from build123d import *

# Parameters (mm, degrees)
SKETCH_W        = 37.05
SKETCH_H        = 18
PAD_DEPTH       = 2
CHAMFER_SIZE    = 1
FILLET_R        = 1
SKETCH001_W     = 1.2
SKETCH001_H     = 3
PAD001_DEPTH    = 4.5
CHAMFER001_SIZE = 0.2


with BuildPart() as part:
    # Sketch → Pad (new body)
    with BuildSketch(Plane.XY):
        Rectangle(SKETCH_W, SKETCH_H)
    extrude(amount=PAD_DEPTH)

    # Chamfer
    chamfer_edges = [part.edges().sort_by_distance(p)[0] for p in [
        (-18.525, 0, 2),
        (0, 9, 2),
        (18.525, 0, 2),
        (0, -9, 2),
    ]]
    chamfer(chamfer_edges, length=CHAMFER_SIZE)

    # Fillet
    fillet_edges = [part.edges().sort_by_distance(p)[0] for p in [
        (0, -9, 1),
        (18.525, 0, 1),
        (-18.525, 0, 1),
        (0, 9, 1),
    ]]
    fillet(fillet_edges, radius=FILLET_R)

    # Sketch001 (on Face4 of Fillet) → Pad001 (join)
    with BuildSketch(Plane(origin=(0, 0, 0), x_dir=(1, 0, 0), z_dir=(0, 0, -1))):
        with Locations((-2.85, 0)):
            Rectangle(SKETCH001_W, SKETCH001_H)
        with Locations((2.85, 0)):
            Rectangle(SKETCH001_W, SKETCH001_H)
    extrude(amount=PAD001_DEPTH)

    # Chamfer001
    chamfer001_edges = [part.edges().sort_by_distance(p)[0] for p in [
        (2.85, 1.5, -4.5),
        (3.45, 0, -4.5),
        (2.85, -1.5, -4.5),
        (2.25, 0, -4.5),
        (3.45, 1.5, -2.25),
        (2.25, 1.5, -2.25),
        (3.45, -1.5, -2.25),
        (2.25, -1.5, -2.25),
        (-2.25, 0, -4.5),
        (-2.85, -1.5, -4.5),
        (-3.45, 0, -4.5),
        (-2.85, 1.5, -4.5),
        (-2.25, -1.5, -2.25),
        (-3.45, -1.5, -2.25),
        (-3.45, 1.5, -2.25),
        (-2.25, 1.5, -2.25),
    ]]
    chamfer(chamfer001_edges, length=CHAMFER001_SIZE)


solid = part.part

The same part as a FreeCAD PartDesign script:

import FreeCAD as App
import Part
import Sketcher

V = App.Vector
Q = App.Units.Quantity


def edges_at(feature, points):
    """Names of the edges that pass closest to the given points."""
    edges = feature.Shape.Edges
    near = lambda p: min(range(len(edges)), key=lambda i: edges[i].distToShape(Part.Vertex(*p))[0])
    return sorted({f"Edge{near(p) + 1}" for p in points})

doc = App.newDocument("Part")
body = doc.addObject("PartDesign::Body", "Body")

sketch1 = body.newObject("Sketcher::SketchObject", "Sketch")
sketch1.AttachmentSupport = (doc.getObject("XY_Plane"), [""])
sketch1.MapMode = "FlatFace"
sketch1.addGeometry([
    Part.LineSegment(V(-19, 9, 0), V(-19, -9, 0)),
    Part.LineSegment(V(-19, -9, 0), V(19, -9, 0)),
    Part.LineSegment(V(19, -9, 0), V(19, 9, 0)),
    Part.LineSegment(V(19, 9, 0), V(-19, 9, 0)),
], False)
sketch1.addConstraint([
    Sketcher.Constraint("Coincident", 0, 2, 1, 1),
    Sketcher.Constraint("Coincident", 1, 2, 2, 1),
    Sketcher.Constraint("Coincident", 2, 2, 3, 1),
    Sketcher.Constraint("Coincident", 3, 2, 0, 1),
    Sketcher.Constraint("Vertical", 0),
    Sketcher.Constraint("Horizontal", 1),
    Sketcher.Constraint("Vertical", 2),
    Sketcher.Constraint("Horizontal", 3),
    Sketcher.Constraint("Symmetric", 0, 2, 2, 2, -1, 1),
    Sketcher.Constraint("DistanceY", 0, 2, 0, 1, Q("18 mm")),
    Sketcher.Constraint("DistanceX", 1, 1, 1, 2, Q("37.05 mm")),
])
pad1 = body.newObject("PartDesign::Pad", "Pad")
pad1.Profile = sketch1
pad1.Length = 2
doc.recompute()

chamfer = body.newObject("PartDesign::Chamfer", "Chamfer")
chamfer.Base = (pad1, edges_at(pad1, [
    (-18.525, 0, 2),
    (0, 9, 2),
    (18.525, 0, 2),
    (0, -9, 2),
]))
chamfer.Size = 1
doc.recompute()

fillet = body.newObject("PartDesign::Fillet", "Fillet")
fillet.Base = (chamfer, edges_at(chamfer, [
    (0, -9, 1),
    (18.525, 0, 1),
    (-18.525, 0, 1),
    (0, 9, 1),
]))
fillet.Radius = 1

sketch2 = body.newObject("Sketcher::SketchObject", "Sketch001")
sketch2.AttachmentSupport = (doc.getObject("XY_Plane"), [""])
sketch2.MapMode = "FlatFace"
sketch2.addGeometry([
    Part.LineSegment(V(-3.5, -1.5, 0), V(-3.5, 1.5, 0)),
    Part.LineSegment(V(-3.5, 1.5, 0), V(-2.2, 1.5, 0)),
    Part.LineSegment(V(-2.2, 1.5, 0), V(-2.2, -1.5, 0)),
    Part.LineSegment(V(-2.2, -1.5, 0), V(-3.5, -1.5, 0)),
    Part.LineSegment(V(2.2, -1.5, 0), V(2.2, 1.5, 0)),
    Part.LineSegment(V(2.2, 1.5, 0), V(3.5, 1.5, 0)),
    Part.LineSegment(V(3.5, 1.5, 0), V(3.5, -1.5, 0)),
    Part.LineSegment(V(3.5, -1.5, 0), V(2.2, -1.5, 0)),
], False)
sketch2.addConstraint([
    Sketcher.Constraint("Coincident", 0, 2, 1, 1),
    Sketcher.Constraint("Coincident", 1, 2, 2, 1),
    Sketcher.Constraint("Coincident", 2, 2, 3, 1),
    Sketcher.Constraint("Coincident", 3, 2, 0, 1),
    Sketcher.Constraint("Coincident", 4, 2, 5, 1),
    Sketcher.Constraint("Coincident", 5, 2, 6, 1),
    Sketcher.Constraint("Coincident", 6, 2, 7, 1),
    Sketcher.Constraint("Coincident", 7, 2, 4, 1),
    Sketcher.Constraint("Vertical", 0),
    Sketcher.Constraint("Horizontal", 1),
    Sketcher.Constraint("Vertical", 2),
    Sketcher.Constraint("Horizontal", 3),
    Sketcher.Constraint("Vertical", 4),
    Sketcher.Constraint("Horizontal", 5),
    Sketcher.Constraint("Vertical", 6),
    Sketcher.Constraint("Horizontal", 7),
    Sketcher.Constraint("Symmetric", 2, 2, 4, 2, -1, 1),
    Sketcher.Constraint("Symmetric", 0, 2, 6, 2, -1, 1),
    Sketcher.Constraint("Horizontal", 1, 2, 4, 2),
    Sketcher.Constraint("DistanceY", 0, 1, 0, 2, Q("3 mm")),
    Sketcher.Constraint("DistanceX", 1, 1, 1, 2, Q("1.2 mm")),
    Sketcher.Constraint("DistanceX", 1, 2, 4, 2, Q("4.5 mm")),
])
pad2 = body.newObject("PartDesign::Pad", "Pad001")
pad2.Profile = sketch2
pad2.Length = 4.5
pad2.Reversed = True
doc.recompute()

chamfer2 = body.newObject("PartDesign::Chamfer", "Chamfer001")
chamfer2.Base = (pad2, edges_at(pad2, [
    (2.85, 1.5, -4.5),
    (3.45, 0, -4.5),
    (2.85, -1.5, -4.5),
    (2.25, 0, -4.5),
    (3.45, 1.5, -2.25),
    (2.25, 1.5, -2.25),
    (3.45, -1.5, -2.25),
    (2.25, -1.5, -2.25),
    (-2.25, 0, -4.5),
    (-2.85, -1.5, -4.5),
    (-3.45, 0, -4.5),
    (-2.85, 1.5, -4.5),
    (-2.25, -1.5, -2.25),
    (-3.45, -1.5, -2.25),
    (-3.45, 1.5, -2.25),
    (-2.25, 1.5, -2.25),
]))
chamfer2.Size = 0.2

doc.recompute()
